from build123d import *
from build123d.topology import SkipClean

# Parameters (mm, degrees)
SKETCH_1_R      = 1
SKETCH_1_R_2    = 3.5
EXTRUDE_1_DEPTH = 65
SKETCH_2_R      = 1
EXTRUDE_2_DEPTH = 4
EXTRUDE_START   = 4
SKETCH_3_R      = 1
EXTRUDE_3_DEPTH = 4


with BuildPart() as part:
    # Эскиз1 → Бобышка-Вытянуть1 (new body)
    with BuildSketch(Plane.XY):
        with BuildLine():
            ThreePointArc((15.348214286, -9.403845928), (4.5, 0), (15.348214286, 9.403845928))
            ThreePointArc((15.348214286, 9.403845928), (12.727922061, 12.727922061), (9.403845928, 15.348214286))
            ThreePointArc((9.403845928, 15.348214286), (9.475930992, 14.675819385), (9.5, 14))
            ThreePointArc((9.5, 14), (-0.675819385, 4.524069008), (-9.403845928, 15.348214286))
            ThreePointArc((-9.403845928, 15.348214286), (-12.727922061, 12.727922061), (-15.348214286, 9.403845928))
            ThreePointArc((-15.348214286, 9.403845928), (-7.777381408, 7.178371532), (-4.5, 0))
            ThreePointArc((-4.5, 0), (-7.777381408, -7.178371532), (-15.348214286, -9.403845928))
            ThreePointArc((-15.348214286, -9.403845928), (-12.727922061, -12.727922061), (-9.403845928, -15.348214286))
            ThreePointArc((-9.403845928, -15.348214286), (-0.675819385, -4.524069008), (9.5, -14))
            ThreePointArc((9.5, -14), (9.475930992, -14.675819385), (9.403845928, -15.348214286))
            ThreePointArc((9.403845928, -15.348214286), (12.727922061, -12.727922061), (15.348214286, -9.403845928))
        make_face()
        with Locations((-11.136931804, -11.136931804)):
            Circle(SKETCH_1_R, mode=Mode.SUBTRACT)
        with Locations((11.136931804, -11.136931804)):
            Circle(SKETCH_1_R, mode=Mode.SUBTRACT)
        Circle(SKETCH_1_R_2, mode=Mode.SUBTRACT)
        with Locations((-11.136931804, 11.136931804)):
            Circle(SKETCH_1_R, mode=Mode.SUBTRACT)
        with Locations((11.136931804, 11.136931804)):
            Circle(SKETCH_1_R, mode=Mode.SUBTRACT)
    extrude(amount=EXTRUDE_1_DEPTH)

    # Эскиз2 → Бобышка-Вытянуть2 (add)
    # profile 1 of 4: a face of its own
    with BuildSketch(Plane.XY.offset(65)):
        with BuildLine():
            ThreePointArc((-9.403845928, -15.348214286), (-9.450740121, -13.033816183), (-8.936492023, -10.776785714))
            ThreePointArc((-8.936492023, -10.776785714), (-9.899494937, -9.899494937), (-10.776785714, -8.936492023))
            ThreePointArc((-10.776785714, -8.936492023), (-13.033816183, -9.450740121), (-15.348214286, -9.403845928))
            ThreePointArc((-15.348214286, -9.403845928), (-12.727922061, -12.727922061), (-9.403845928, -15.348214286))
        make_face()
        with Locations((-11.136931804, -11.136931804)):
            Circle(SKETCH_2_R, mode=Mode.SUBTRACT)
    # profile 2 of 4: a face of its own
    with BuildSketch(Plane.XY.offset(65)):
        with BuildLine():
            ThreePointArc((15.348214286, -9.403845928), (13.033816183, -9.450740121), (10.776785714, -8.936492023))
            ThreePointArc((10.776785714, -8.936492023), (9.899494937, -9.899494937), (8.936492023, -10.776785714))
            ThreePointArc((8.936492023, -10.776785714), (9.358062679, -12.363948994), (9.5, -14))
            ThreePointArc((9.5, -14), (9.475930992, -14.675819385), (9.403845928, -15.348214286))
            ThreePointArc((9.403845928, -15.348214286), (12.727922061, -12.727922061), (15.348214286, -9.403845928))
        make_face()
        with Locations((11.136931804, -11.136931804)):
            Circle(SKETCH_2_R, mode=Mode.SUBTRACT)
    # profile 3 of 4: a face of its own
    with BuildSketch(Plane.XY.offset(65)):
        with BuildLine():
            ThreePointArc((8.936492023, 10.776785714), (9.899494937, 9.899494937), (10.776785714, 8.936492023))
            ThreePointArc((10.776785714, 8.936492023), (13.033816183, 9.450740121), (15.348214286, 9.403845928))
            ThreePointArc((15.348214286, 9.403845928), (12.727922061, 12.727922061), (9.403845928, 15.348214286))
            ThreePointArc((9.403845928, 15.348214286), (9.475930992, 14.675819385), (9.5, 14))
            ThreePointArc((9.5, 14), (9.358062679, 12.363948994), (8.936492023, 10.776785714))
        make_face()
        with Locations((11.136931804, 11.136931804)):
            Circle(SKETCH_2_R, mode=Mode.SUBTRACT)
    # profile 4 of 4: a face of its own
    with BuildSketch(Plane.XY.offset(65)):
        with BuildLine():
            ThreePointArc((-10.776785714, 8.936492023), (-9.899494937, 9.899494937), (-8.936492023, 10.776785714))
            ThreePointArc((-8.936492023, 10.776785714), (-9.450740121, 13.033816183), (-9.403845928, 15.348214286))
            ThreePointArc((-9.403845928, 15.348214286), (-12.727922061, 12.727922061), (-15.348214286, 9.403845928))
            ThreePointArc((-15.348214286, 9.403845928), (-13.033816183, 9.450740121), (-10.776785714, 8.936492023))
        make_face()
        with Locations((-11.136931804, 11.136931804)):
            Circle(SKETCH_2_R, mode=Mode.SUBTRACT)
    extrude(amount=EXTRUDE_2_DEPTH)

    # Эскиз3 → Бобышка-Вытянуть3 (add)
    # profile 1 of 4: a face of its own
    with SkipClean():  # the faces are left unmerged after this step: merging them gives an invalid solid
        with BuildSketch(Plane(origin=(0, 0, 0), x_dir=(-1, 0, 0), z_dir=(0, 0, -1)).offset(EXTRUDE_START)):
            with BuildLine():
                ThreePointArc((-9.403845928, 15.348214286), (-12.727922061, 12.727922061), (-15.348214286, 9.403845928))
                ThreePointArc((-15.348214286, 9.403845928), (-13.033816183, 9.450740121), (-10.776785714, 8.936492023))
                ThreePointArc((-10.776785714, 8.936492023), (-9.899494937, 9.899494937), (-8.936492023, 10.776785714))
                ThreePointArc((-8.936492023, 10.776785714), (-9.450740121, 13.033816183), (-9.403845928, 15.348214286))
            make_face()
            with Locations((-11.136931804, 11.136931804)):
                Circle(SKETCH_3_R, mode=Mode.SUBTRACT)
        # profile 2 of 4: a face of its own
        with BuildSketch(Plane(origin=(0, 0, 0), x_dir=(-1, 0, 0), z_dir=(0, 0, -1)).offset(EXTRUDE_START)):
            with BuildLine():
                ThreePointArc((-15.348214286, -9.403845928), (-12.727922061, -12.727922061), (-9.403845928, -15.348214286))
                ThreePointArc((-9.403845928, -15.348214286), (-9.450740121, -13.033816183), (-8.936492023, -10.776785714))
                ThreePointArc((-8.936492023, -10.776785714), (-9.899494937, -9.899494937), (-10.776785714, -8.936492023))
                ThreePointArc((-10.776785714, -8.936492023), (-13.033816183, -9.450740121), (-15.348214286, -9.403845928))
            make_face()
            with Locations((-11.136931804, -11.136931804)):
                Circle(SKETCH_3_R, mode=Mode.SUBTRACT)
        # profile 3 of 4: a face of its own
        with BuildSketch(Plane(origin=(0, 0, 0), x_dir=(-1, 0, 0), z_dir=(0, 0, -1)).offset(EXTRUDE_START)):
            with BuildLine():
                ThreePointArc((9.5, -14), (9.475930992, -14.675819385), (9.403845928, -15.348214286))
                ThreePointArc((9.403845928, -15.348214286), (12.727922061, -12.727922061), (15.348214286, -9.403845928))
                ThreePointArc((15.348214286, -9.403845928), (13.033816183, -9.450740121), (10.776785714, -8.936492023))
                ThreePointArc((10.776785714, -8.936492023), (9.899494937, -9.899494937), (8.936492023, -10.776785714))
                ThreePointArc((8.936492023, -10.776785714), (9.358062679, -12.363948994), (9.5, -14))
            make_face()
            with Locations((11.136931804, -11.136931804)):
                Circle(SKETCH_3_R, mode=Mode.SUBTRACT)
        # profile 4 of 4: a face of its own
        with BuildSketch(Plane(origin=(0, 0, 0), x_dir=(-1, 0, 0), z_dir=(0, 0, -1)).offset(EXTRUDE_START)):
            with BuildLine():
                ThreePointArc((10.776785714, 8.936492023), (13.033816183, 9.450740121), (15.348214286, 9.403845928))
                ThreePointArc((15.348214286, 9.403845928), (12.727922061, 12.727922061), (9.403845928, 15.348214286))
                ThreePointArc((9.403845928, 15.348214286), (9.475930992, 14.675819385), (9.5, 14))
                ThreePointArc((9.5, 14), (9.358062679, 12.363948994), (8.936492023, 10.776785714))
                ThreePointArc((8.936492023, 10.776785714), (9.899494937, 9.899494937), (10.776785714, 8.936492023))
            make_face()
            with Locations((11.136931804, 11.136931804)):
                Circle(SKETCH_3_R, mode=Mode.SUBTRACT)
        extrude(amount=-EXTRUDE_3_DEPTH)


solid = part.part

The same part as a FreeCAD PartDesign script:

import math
import FreeCAD as App
import Part
import Sketcher

doc = App.newDocument("Part")
body = doc.addObject("PartDesign::Body", "Body")

# Sketch on XY plane
sketch1 = doc.addObject("Sketcher::SketchObject", "Sketch")
body.addObject(sketch1)
sketch1.AttachmentSupport = (doc.XY_Plane, [""])
sketch1.MapMode = "FlatFace"
sketch1.addGeometry(Part.ArcOfCircle(Part.Circle(App.Vector(14, 0, 0), App.Vector(0, 0, 1), 9.5), math.radians(82), math.radians(278)), False)
sketch1.addGeometry(Part.ArcOfCircle(Part.Circle(App.Vector(0, 0, 0), App.Vector(0, 0, 1), 18), math.radians(31), math.radians(59)), False)
sketch1.addGeometry(Part.ArcOfCircle(Part.Circle(App.Vector(0, 14, 0), App.Vector(0, 0, 1), 9.5), math.radians(0), math.radians(8.16)), False)
sketch1.addGeometry(Part.ArcOfCircle(Part.Circle(App.Vector(0, 14, 0), App.Vector(0, 0, 1), 9.5), math.radians(172), math.radians(360)), False)
sketch1.addGeometry(Part.ArcOfCircle(Part.Circle(App.Vector(0, 0, 0), App.Vector(0, 0, 1), 18), math.radians(121), math.radians(149)), False)
sketch1.addGeometry(Part.ArcOfCircle(Part.Circle(App.Vector(-14, 0, 0), App.Vector(0, 0, 1), 9.5), math.radians(0), math.radians(98)), False)
sketch1.addGeometry(Part.ArcOfCircle(Part.Circle(App.Vector(-14, 0, 0), App.Vector(0, 0, 1), 9.5), math.radians(-98), math.radians(0)), False)
sketch1.addGeometry(Part.ArcOfCircle(Part.Circle(App.Vector(0, 0, 0), App.Vector(0, 0, 1), 18), math.radians(-149), math.radians(-121)), False)
sketch1.addGeometry(Part.ArcOfCircle(Part.Circle(App.Vector(0, -14, 0), App.Vector(0, 0, 1), 9.5), math.radians(0), math.radians(188)), False)
sketch1.addGeometry(Part.ArcOfCircle(Part.Circle(App.Vector(0, -14, 0), App.Vector(0, 0, 1), 9.5), math.radians(-8.16), math.radians(0)), False)
sketch1.addGeometry(Part.ArcOfCircle(Part.Circle(App.Vector(0, 0, 0), App.Vector(0, 0, 1), 18), math.radians(-59), math.radians(-31)), False)
sketch1.addGeometry(Part.Circle(App.Vector(-11.1, -11.1, 0), App.Vector(0, 0, 1), 1), False)
sketch1.addGeometry(Part.Circle(App.Vector(11.1, -11.1, 0), App.Vector(0, 0, 1), 1), False)
sketch1.addGeometry(Part.Circle(App.Vector(-11.1, 11.1, 0), App.Vector(0, 0, 1), 1), False)
sketch1.addGeometry(Part.Circle(App.Vector(0, 0, 0), App.Vector(0, 0, 1), 3.5), False)
sketch1.addGeometry(Part.Circle(App.Vector(11.1, 11.1, 0), App.Vector(0, 0, 1), 1), False)
sketch1.addConstraint(Sketcher.Constraint("Coincident", 0, 1, 1, 1))
sketch1.addConstraint(Sketcher.Constraint("Coincident", 1, 2, 2, 2))
sketch1.addConstraint(Sketcher.Constraint("Tangent", 2, 1, 3, 2))
sketch1.addConstraint(Sketcher.Constraint("Coincident", 3, 1, 4, 1))
sketch1.addConstraint(Sketcher.Constraint("Coincident", 4, 2, 5, 2))
sketch1.addConstraint(Sketcher.Constraint("Tangent", 5, 1, 6, 2))
sketch1.addConstraint(Sketcher.Constraint("Coincident", 6, 1, 7, 1))
sketch1.addConstraint(Sketcher.Constraint("Coincident", 7, 2, 8, 2))
sketch1.addConstraint(Sketcher.Constraint("Tangent", 8, 1, 9, 2))
sketch1.addConstraint(Sketcher.Constraint("Coincident", 9, 1, 10, 1))
sketch1.addConstraint(Sketcher.Constraint("Coincident", 10, 2, 0, 2))
sketch1.addConstraint(Sketcher.Constraint("Coincident", 1, 3, -1, 1))
sketch1.addConstraint(Sketcher.Constraint("Coincident", 4, 3, -1, 1))
sketch1.addConstraint(Sketcher.Constraint("Coincident", 7, 3, -1, 1))
sketch1.addConstraint(Sketcher.Constraint("Coincident", 10, 3, -1, 1))
sketch1.addConstraint(Sketcher.Constraint("Coincident", 14, 3, -1, 1))
sketch1.addConstraint(Sketcher.Constraint("Equal", 0, 2))
sketch1.addConstraint(Sketcher.Constraint("Equal", 2, 3))
sketch1.addConstraint(Sketcher.Constraint("Equal", 1, 4))
sketch1.addConstraint(Sketcher.Constraint("Equal", 3, 5))
sketch1.addConstraint(Sketcher.Constraint("Equal", 5, 6))
sketch1.addConstraint(Sketcher.Constraint("Equal", 4, 7))
sketch1.addConstraint(Sketcher.Constraint("Equal", 6, 8))
sketch1.addConstraint(Sketcher.Constraint("Equal", 8, 9))
sketch1.addConstraint(Sketcher.Constraint("Equal", 7, 10))
sketch1.addConstraint(Sketcher.Constraint("Equal", 11, 12))
sketch1.addConstraint(Sketcher.Constraint("Equal", 12, 13))
sketch1.addConstraint(Sketcher.Constraint("Equal", 13, 15))
sketch1.addConstraint(Sketcher.Constraint("Symmetric", 0, 3, 5, 3, -1, 1))
sketch1.addConstraint(Sketcher.Constraint("Symmetric", 2, 3, 8, 3, -1, 1))
sketch1.addConstraint(Sketcher.Constraint("Symmetric", 12, 3, 13, 3, -1, 1))
sketch1.addConstraint(Sketcher.Constraint("Symmetric", 11, 3, 15, 3, -1, 1))
sketch1.addConstraint(Sketcher.Constraint("Symmetric", 11, 3, 12, 3, -2))
sketch1.addConstraint(Sketcher.Constraint("Symmetric", 2, 1, 8, 1, -1))
sketch1.addConstraint(Sketcher.Constraint("PointOnObject", 0, 3, -1))
sketch1.addConstraint(Sketcher.Constraint("PointOnObject", 5, 1, -1))
sketch1.addConstraint(Sketcher.Constraint("Horizontal", 3, 3, 2, 1))
sketch1.addConstraint(Sketcher.Constraint("Diameter", 11, 2.0))
sketch1.addConstraint(Sketcher.Constraint("Diameter", 14, 7.0))
sketch1.addConstraint(Sketcher.Constraint("Radius", 1, 18.0))
sketch1.addConstraint(Sketcher.Constraint("Radius", 0, 9.5))
sketch1.addConstraint(Sketcher.Constraint("DistanceX", -1, 1, 0, 3, 14.0))
sketch1.addConstraint(Sketcher.Constraint("DistanceY", -1, 1, 2, 3, 14.0))
sketch1.addConstraint(Sketcher.Constraint("DistanceX", 11, 3, -1, 1, 11.136932))
sketch1.addConstraint(Sketcher.Constraint("DistanceY", 11, 3, -1, 1, 11.136932))
pad1 = doc.addObject("PartDesign::Pad", "Pad")
body.addObject(pad1)
pad1.Profile = sketch1
pad1.Length = 65

# Sketch on XY plane
sketch2 = doc.addObject("Sketcher::SketchObject", "Sketch001")
body.addObject(sketch2)
sketch2.AttachmentSupport = (doc.XY_Plane, [""])
sketch2.MapMode = "FlatFace"
sketch2.AttachmentOffset = App.Placement(App.Vector(0, 0, 65), App.Rotation())
sketch2.addGeometry(Part.ArcOfCircle(Part.Circle(App.Vector(0, -14, 0), App.Vector(0, 0, 1), 9.5), math.radians(160), math.radians(188)), False)
sketch2.addGeometry(Part.ArcOfCircle(Part.Circle(App.Vector(0, 0, 0), App.Vector(0, 0, 1), 14), math.radians(-140.33), math.radians(-129.67)), False)
sketch2.addGeometry(Part.ArcOfCircle(Part.Circle(App.Vector(-14, 0, 0), App.Vector(0, 0, 1), 9.5), math.radians(-98), math.radians(-70)), False)
sketch2.addGeometry(Part.ArcOfCircle(Part.Circle(App.Vector(0, 0, 0), App.Vector(0, 0, 1), 18), math.radians(-149), math.radians(-121)), False)
sketch2.addGeometry(Part.Circle(App.Vector(-11.1, -11.1, 0), App.Vector(0, 0, 1), 1), False)
sketch2.addGeometry(Part.ArcOfCircle(Part.Circle(App.Vector(14, 0, 0), App.Vector(0, 0, 1), 9.5), math.radians(-110), math.radians(-82)), False)
sketch2.addGeometry(Part.ArcOfCircle(Part.Circle(App.Vector(0, 0, 0), App.Vector(0, 0, 1), 14), math.radians(-50.33), math.radians(-39.67)), False)
sketch2.addGeometry(Part.ArcOfCircle(Part.Circle(App.Vector(0, -14, 0), App.Vector(0, 0, 1), 9.5), math.radians(0), math.radians(19.83)), False)
sketch2.addGeometry(Part.ArcOfCircle(Part.Circle(App.Vector(0, -14, 0), App.Vector(0, 0, 1), 9.5), math.radians(-8.16), math.radians(0)), False)
sketch2.addGeometry(Part.ArcOfCircle(Part.Circle(App.Vector(0, 0, 0), App.Vector(0, 0, 1), 18), math.radians(-59), math.radians(-31)), False)
sketch2.addGeometry(Part.Circle(App.Vector(11.1, -11.1, 0), App.Vector(0, 0, 1), 1), False)
sketch2.addGeometry(Part.ArcOfCircle(Part.Circle(App.Vector(0, 0, 0), App.Vector(0, 0, 1), 14), math.radians(39.67), math.radians(50.33)), False)
sketch2.addGeometry(Part.ArcOfCircle(Part.Circle(App.Vector(14, 0, 0), App.Vector(0, 0, 1), 9.5), math.radians(82), math.radians(110)), False)
sketch2.addGeometry(Part.ArcOfCircle(Part.Circle(App.Vector(0, 0, 0), App.Vector(0, 0, 1), 18), math.radians(31), math.radians(59)), False)
sketch2.addGeometry(Part.ArcOfCircle(Part.Circle(App.Vector(0, 14, 0), App.Vector(0, 0, 1), 9.5), math.radians(0), math.radians(8.16)), False)
sketch2.addGeometry(Part.ArcOfCircle(Part.Circle(App.Vector(0, 14, 0), App.Vector(0, 0, 1), 9.5), math.radians(-19.83), math.radians(0)), False)
sketch2.addGeometry(Part.Circle(App.Vector(11.1, 11.1, 0), App.Vector(0, 0, 1), 1), False)
sketch2.addGeometry(Part.ArcOfCircle(Part.Circle(App.Vector(0, 0, 0), App.Vector(0, 0, 1), 14), math.radians(129.67), math.radians(140.33)), False)
sketch2.addGeometry(Part.ArcOfCircle(Part.Circle(App.Vector(0, 14, 0), App.Vector(0, 0, 1), 9.5), math.radians(172), math.radians(200)), False)
sketch2.addGeometry(Part.ArcOfCircle(Part.Circle(App.Vector(0, 0, 0), App.Vector(0, 0, 1), 18), math.radians(121), math.radians(149)), False)
sketch2.addGeometry(Part.ArcOfCircle(Part.Circle(App.Vector(-14, 0, 0), App.Vector(0, 0, 1), 9.5), math.radians(70), math.radians(98)), False)
sketch2.addGeometry(Part.Circle(App.Vector(-11.1, 11.1, 0), App.Vector(0, 0, 1), 1), False)
sketch2.addConstraint(Sketcher.Constraint("Coincident", 0, 1, 1, 2))
sketch2.addConstraint(Sketcher.Constraint("Coincident", 1, 1, 2, 2))
sketch2.addConstraint(Sketcher.Constraint("Coincident", 2, 1, 3, 1))
sketch2.addConstraint(Sketcher.Constraint("Coincident", 3, 2, 0, 2))
sketch2.addConstraint(Sketcher.Constraint("Coincident", 5, 1, 6, 2))
sketch2.addConstraint(Sketcher.Constraint("Coincident", 6, 1, 7, 2))
sketch2.addConstraint(Sketcher.Constraint("Tangent", 7, 1, 8, 2))
sketch2.addConstraint(Sketcher.Constraint("Coincident", 8, 1, 9, 1))
sketch2.addConstraint(Sketcher.Constraint("Coincident", 9, 2, 5, 2))
sketch2.addConstraint(Sketcher.Constraint("Coincident", 11, 1, 12, 2))
sketch2.addConstraint(Sketcher.Constraint("Coincident", 12, 1, 13, 1))
sketch2.addConstraint(Sketcher.Constraint("Coincident", 13, 2, 14, 2))
sketch2.addConstraint(Sketcher.Constraint("Tangent", 14, 1, 15, 2))
sketch2.addConstraint(Sketcher.Constraint("Coincident", 15, 1, 11, 2))
sketch2.addConstraint(Sketcher.Constraint("Coincident", 17, 1, 18, 2))
sketch2.addConstraint(Sketcher.Constraint("Coincident", 18, 1, 19, 1))
sketch2.addConstraint(Sketcher.Constraint("Coincident", 19, 2, 20, 2))
sketch2.addConstraint(Sketcher.Constraint("Coincident", 20, 1, 17, 2))
sketch2.addConstraint(Sketcher.Constraint("Coincident", 1, 3, -1, 1))
sketch2.addConstraint(Sketcher.Constraint("Coincident", 3, 3, -1, 1))
sketch2.addConstraint(Sketcher.Constraint("Coincident", 6, 3, -1, 1))
sketch2.addConstraint(Sketcher.Constraint("Coincident", 9, 3, -1, 1))
sketch2.addConstraint(Sketcher.Constraint("Coincident", 11, 3, -1, 1))
sketch2.addConstraint(Sketcher.Constraint("Coincident", 13, 3, -1, 1))
sketch2.addConstraint(Sketcher.Constraint("Coincident", 17, 3, -1, 1))
sketch2.addConstraint(Sketcher.Constraint("Coincident", 19, 3, -1, 1))
sketch2.addConstraint(Sketcher.Constraint("Coincident", 7, 3, 0, 3))
sketch2.addConstraint(Sketcher.Constraint("Coincident", 12, 3, 5, 3))
sketch2.addConstraint(Sketcher.Constraint("Coincident", 18, 3, 14, 3))
sketch2.addConstraint(Sketcher.Constraint("Coincident", 20, 3, 2, 3))
sketch2.addConstraint(Sketcher.Constraint("Equal", 0, 2))
sketch2.addConstraint(Sketcher.Constraint("Equal", 2, 5))
sketch2.addConstraint(Sketcher.Constraint("Equal", 1, 6))
sketch2.addConstraint(Sketcher.Constraint("Equal", 5, 7))
sketch2.addConstraint(Sketcher.Constraint("Equal", 7, 8))
sketch2.addConstraint(Sketcher.Constraint("Equal", 3, 9))
sketch2.addConstraint(Sketcher.Constraint("Equal", 4, 10))
sketch2.addConstraint(Sketcher.Constraint("Equal", 6, 11))
sketch2.addConstraint(Sketcher.Constraint("Equal", 8, 12))
sketch2.addConstraint(Sketcher.Constraint("Equal", 9, 13))
sketch2.addConstraint(Sketcher.Constraint("Equal", 12, 14))
sketch2.addConstraint(Sketcher.Constraint("Equal", 14, 15))
sketch2.addConstraint(Sketcher.Constraint("Equal", 10, 16))
sketch2.addConstraint(Sketcher.Constraint("Equal", 11, 17))
sketch2.addConstraint(Sketcher.Constraint("Equal", 15, 18))
sketch2.addConstraint(Sketcher.Constraint("Equal", 13, 19))
sketch2.addConstraint(Sketcher.Constraint("Equal", 18, 20))
sketch2.addConstraint(Sketcher.Constraint("Equal", 16, 21))
sketch2.addConstraint(Sketcher.Constraint("Symmetric", 2, 3, 5, 3, -1, 1))
sketch2.addConstraint(Sketcher.Constraint("Symmetric", 0, 3, 14, 3, -1, 1))
sketch2.addConstraint(Sketcher.Constraint("Symmetric", 4, 3, 16, 3, -1, 1))
sketch2.addConstraint(Sketcher.Constraint("Symmetric", 10, 3, 21, 3, -1, 1))
sketch2.addConstraint(Sketcher.Constraint("Symmetric", 4, 3, 10, 3, -2))
sketch2.addConstraint(Sketcher.Constraint("Symmetric", 7, 1, 14, 1, -1))
sketch2.addConstraint(Sketcher.Constraint("PointOnObject", 2, 3, -1))
sketch2.addConstraint(Sketcher.Constraint("Horizontal", 8, 3, 7, 1))
sketch2.addConstraint(Sketcher.Constraint("Diameter", 4, 2.0))
sketch2.addConstraint(Sketcher.Constraint("Radius", 1, 14.0))
sketch2.addConstraint(Sketcher.Constraint("Radius", 3, 18.0))
sketch2.addConstraint(Sketcher.Constraint("Radius", 0, 9.5))
sketch2.addConstraint(Sketcher.Constraint("DistanceY", 0, 3, -1, 1, 14.0))
sketch2.addConstraint(Sketcher.Constraint("DistanceX", 2, 3, -1, 1, 14.0))
sketch2.addConstraint(Sketcher.Constraint("DistanceX", 4, 3, -1, 1, 11.136932))
sketch2.addConstraint(Sketcher.Constraint("DistanceY", 4, 3, -1, 1, 11.136932))
pad2 = doc.addObject("PartDesign::Pad", "Pad001")
body.addObject(pad2)
pad2.Profile = sketch2
pad2.Length = 4

# Sketch on XY plane
sketch3 = doc.addObject("Sketcher::SketchObject", "Sketch002")
body.addObject(sketch3)
sketch3.AttachmentSupport = (doc.XY_Plane, [""])
sketch3.MapMode = "FlatFace"
sketch3.AttachmentOffset = App.Placement(App.Vector(0, 0, -4), App.Rotation())
sketch3.addGeometry(Part.ArcOfCircle(Part.Circle(App.Vector(0, 0, 0), App.Vector(0, 0, 1), 18), math.radians(31), math.radians(59)), False)
sketch3.addGeometry(Part.ArcOfCircle(Part.Circle(App.Vector(14, 0, 0), App.Vector(0, 0, 1), 9.5), math.radians(82), math.radians(110)), False)
sketch3.addGeometry(Part.ArcOfCircle(Part.Circle(App.Vector(0, 0, 0), App.Vector(0, 0, 1), 14), math.radians(39.67), math.radians(50.33)), False)
sketch3.addGeometry(Part.ArcOfCircle(Part.Circle(App.Vector(0, 14, 0), App.Vector(0, 0, 1), 9.5), math.radians(-20), math.radians(8)), False)
sketch3.addGeometry(Part.Circle(App.Vector(11.1, 11.1, 0), App.Vector(0, 0, 1), 1), False)
sketch3.addGeometry(Part.ArcOfCircle(Part.Circle(App.Vector(0, 0, 0), App.Vector(0, 0, 1), 18), math.radians(-59), math.radians(-31)), False)
sketch3.addGeometry(Part.ArcOfCircle(Part.Circle(App.Vector(0, -14, 0), App.Vector(0, 0, 1), 9.5), math.radians(-8), math.radians(20)), False)
sketch3.addGeometry(Part.ArcOfCircle(Part.Circle(App.Vector(0, 0, 0), App.Vector(0, 0, 1), 14), math.radians(-50.33), math.radians(-39.67)), False)
sketch3.addGeometry(Part.ArcOfCircle(Part.Circle(App.Vector(14, 0, 0), App.Vector(0, 0, 1), 9.5), math.radians(-110), math.radians(-82)), False)
sketch3.addGeometry(Part.Circle(App.Vector(11.1, -11.1, 0), App.Vector(0, 0, 1), 1), False)
sketch3.addGeometry(Part.ArcOfCircle(Part.Circle(App.Vector(0, -14, 0), App.Vector(0, 0, 1), 9.5), math.radians(180), math.radians(188.16)), False)
sketch3.addGeometry(Part.ArcOfCircle(Part.Circle(App.Vector(0, 0, 0), App.Vector(0, 0, 1), 18), math.radians(-149), math.radians(-121)), False)
sketch3.addGeometry(Part.ArcOfCircle(Part.Circle(App.Vector(-14, 0, 0), App.Vector(0, 0, 1), 9.5), math.radians(-98), math.radians(-70)), False)
sketch3.addGeometry(Part.ArcOfCircle(Part.Circle(App.Vector(0, 0, 0), App.Vector(0, 0, 1), 14), math.radians(-140.33), math.radians(-129.67)), False)
sketch3.addGeometry(Part.ArcOfCircle(Part.Circle(App.Vector(0, -14, 0), App.Vector(0, 0, 1), 9.5), math.radians(160.17), math.radians(180)), False)
sketch3.addGeometry(Part.Circle(App.Vector(-11.1, -11.1, 0), App.Vector(0, 0, 1), 1), False)
sketch3.addGeometry(Part.ArcOfCircle(Part.Circle(App.Vector(-14, 0, 0), App.Vector(0, 0, 1), 9.5), math.radians(70), math.radians(98)), False)
sketch3.addGeometry(Part.ArcOfCircle(Part.Circle(App.Vector(0, 0, 0), App.Vector(0, 0, 1), 18), math.radians(121), math.radians(149)), False)
sketch3.addGeometry(Part.ArcOfCircle(Part.Circle(App.Vector(0, 14, 0), App.Vector(0, 0, 1), 9.5), math.radians(171.84), math.radians(180)), False)
sketch3.addGeometry(Part.ArcOfCircle(Part.Circle(App.Vector(0, 14, 0), App.Vector(0, 0, 1), 9.5), math.radians(-180), math.radians(-160.17)), False)
sketch3.addGeometry(Part.ArcOfCircle(Part.Circle(App.Vector(0, 0, 0), App.Vector(0, 0, 1), 14), math.radians(129.67), math.radians(140.33)), False)
sketch3.addGeometry(Part.Circle(App.Vector(-11.1, 11.1, 0), App.Vector(0, 0, 1), 1), False)
sketch3.addConstraint(Sketcher.Constraint("Coincident", 0, 1, 1, 1))
sketch3.addConstraint(Sketcher.Constraint("Coincident", 1, 2, 2, 1))
sketch3.addConstraint(Sketcher.Constraint("Coincident", 2, 2, 3, 1))
sketch3.addConstraint(Sketcher.Constraint("Coincident", 3, 2, 0, 2))
sketch3.addConstraint(Sketcher.Constraint("Coincident", 5, 1, 6, 1))
sketch3.addConstraint(Sketcher.Constraint("Coincident", 6, 2, 7, 1))
sketch3.addConstraint(Sketcher.Constraint("Coincident", 7, 2, 8, 1))
sketch3.addConstraint(Sketcher.Constraint("Coincident", 8, 2, 5, 2))
sketch3.addConstraint(Sketcher.Constraint("Coincident", 10, 2, 11, 2))
sketch3.addConstraint(Sketcher.Constraint("Coincident", 11, 1, 12, 1))
sketch3.addConstraint(Sketcher.Constraint("Coincident", 12, 2, 13, 1))
sketch3.addConstraint(Sketcher.Constraint("Coincident", 13, 2, 14, 1))
sketch3.addConstraint(Sketcher.Constraint("Tangent", 14, 2, 10, 1))
sketch3.addConstraint(Sketcher.Constraint("Coincident", 16, 2, 17, 2))
sketch3.addConstraint(Sketcher.Constraint("Coincident", 17, 1, 18, 1))
sketch3.addConstraint(Sketcher.Constraint("Tangent", 18, 2, 19, 1))
sketch3.addConstraint(Sketcher.Constraint("Coincident", 19, 2, 20, 1))
sketch3.addConstraint(Sketcher.Constraint("Coincident", 20, 2, 16, 1))
sketch3.addConstraint(Sketcher.Constraint("Coincident", 0, 3, -1, 1))
sketch3.addConstraint(Sketcher.Constraint("Coincident", 2, 3, -1, 1))
sketch3.addConstraint(Sketcher.Constraint("Coincident", 5, 3, -1, 1))
sketch3.addConstraint(Sketcher.Constraint("Coincident", 7, 3, -1, 1))
sketch3.addConstraint(Sketcher.Constraint("Coincident", 11, 3, -1, 1))
sketch3.addConstraint(Sketcher.Constraint("Coincident", 13, 3, -1, 1))
sketch3.addConstraint(Sketcher.Constraint("Coincident", 17, 3, -1, 1))
sketch3.addConstraint(Sketcher.Constraint("Coincident", 20, 3, -1, 1))
sketch3.addConstraint(Sketcher.Constraint("Coincident", 8, 3, 1, 3))
sketch3.addConstraint(Sketcher.Constraint("Coincident", 10, 3, 6, 3))
sketch3.addConstraint(Sketcher.Constraint("Coincident", 16, 3, 12, 3))
sketch3.addConstraint(Sketcher.Constraint("Coincident", 18, 3, 3, 3))
sketch3.addConstraint(Sketcher.Constraint("Equal", 1, 3))
sketch3.addConstraint(Sketcher.Constraint("Equal", 0, 5))
sketch3.addConstraint(Sketcher.Constraint("Equal", 3, 6))
sketch3.addConstraint(Sketcher.Constraint("Equal", 2, 7))
sketch3.addConstraint(Sketcher.Constraint("Equal", 6, 8))
sketch3.addConstraint(Sketcher.Constraint("Equal", 4, 9))
sketch3.addConstraint(Sketcher.Constraint("Equal", 8, 10))
sketch3.addConstraint(Sketcher.Constraint("Equal", 5, 11))
sketch3.addConstraint(Sketcher.Constraint("Equal", 10, 12))
sketch3.addConstraint(Sketcher.Constraint("Equal", 7, 13))
sketch3.addConstraint(Sketcher.Constraint("Equal", 12, 14))
sketch3.addConstraint(Sketcher.Constraint("Equal", 9, 15))
sketch3.addConstraint(Sketcher.Constraint("Equal", 14, 16))
sketch3.addConstraint(Sketcher.Constraint("Equal", 11, 17))
sketch3.addConstraint(Sketcher.Constraint("Equal", 16, 18))
sketch3.addConstraint(Sketcher.Constraint("Equal", 18, 19))
sketch3.addConstraint(Sketcher.Constraint("Equal", 13, 20))
sketch3.addConstraint(Sketcher.Constraint("Equal", 15, 21))
sketch3.addConstraint(Sketcher.Constraint("Symmetric", 3, 3, 6, 3, -1, 1))
sketch3.addConstraint(Sketcher.Constraint("Symmetric", 1, 3, 12, 3, -1, 1))
sketch3.addConstraint(Sketcher.Constraint("Symmetric", 4, 3, 15, 3, -1, 1))
sketch3.addConstraint(Sketcher.Constraint("Symmetric", 9, 3, 21, 3, -1, 1))
sketch3.addConstraint(Sketcher.Constraint("Symmetric", 9, 3, 15, 3, -2))
sketch3.addConstraint(Sketcher.Constraint("Symmetric", 14, 2, 18, 2, -1))
sketch3.addConstraint(Sketcher.Constraint("PointOnObject", 1, 3, -1))
sketch3.addConstraint(Sketcher.Constraint("Horizontal", 10, 3, 14, 2))
sketch3.addConstraint(Sketcher.Constraint("Diameter", 4, 2.0))
sketch3.addConstraint(Sketcher.Constraint("Radius", 0, 18.0))
sketch3.addConstraint(Sketcher.Constraint("Radius", 2, 14.0))
sketch3.addConstraint(Sketcher.Constraint("Radius", 1, 9.5))
sketch3.addConstraint(Sketcher.Constraint("DistanceX", -1, 1, 1, 3, 14.0))
sketch3.addConstraint(Sketcher.Constraint("DistanceY", -1, 1, 3, 3, 14.0))
sketch3.addConstraint(Sketcher.Constraint("DistanceX", -1, 1, 4, 3, 11.136932))
sketch3.addConstraint(Sketcher.Constraint("DistanceY", -1, 1, 4, 3, 11.136932))
pad3 = doc.addObject("PartDesign::Pad", "Pad002")
body.addObject(pad3)
pad3.Profile = sketch3
pad3.Length = 4

doc.recompute()
